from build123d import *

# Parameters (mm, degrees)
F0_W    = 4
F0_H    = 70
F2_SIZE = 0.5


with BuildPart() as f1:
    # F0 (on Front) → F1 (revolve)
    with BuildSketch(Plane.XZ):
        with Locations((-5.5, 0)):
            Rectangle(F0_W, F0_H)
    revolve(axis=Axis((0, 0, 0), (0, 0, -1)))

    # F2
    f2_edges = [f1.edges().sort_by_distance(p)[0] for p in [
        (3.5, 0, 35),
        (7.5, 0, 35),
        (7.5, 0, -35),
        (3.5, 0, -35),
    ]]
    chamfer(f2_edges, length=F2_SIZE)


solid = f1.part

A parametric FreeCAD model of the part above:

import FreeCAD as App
import Part
import Sketcher

V = App.Vector
Q = App.Units.Quantity


def edges_at(feature, points):
    """Names of the edges that pass closest to the given points."""
    edges = feature.Shape.Edges
    near = lambda p: min(range(len(edges)), key=lambda i: edges[i].distToShape(Part.Vertex(*p))[0])
    return sorted({f"Edge{near(p) + 1}" for p in points})


def add_polygon(sketch, points):
    """Adds a closed chain of lines whose ends are joined by coincident constraints."""
    first, n = sketch.GeometryCount, len(points)
    for a, b in zip(points, points[1:] + points[:1]):
        sketch.addGeometry(Part.LineSegment(App.Vector(*a, 0), App.Vector(*b, 0)), False)
    for i in range(n):
        sketch.addConstraint(Sketcher.Constraint("Coincident", first + i, 2, first + (i + 1) % n, 1))

doc = App.newDocument("Part")
body = doc.addObject("PartDesign::Body", "Body")

# Sketch on XZ plane
sketch1 = doc.addObject("Sketcher::SketchObject", "Sketch")
body.addObject(sketch1)
sketch1.AttachmentSupport = (doc.XZ_Plane, [""])
sketch1.MapMode = "FlatFace"
add_polygon(sketch1, [(-7.5, 35), (-7.5, -35), (-3.5, -35), (-3.5, 35)])  # lines 0-3
sketch1.addConstraint([
    Sketcher.Constraint("Vertical", 0),
    Sketcher.Constraint("Horizontal", 1),
    Sketcher.Constraint("Vertical", 2),
    Sketcher.Constraint("Horizontal", 3),
    Sketcher.Constraint("DistanceX", 1, 1, 1, 2, Q("4 mm")),
    Sketcher.Constraint("DistanceY", 0, 2, 0, 1, Q("70 mm")),
    Sketcher.Constraint("DistanceY", 0, 2, -1, 1, Q("35 mm")),
    Sketcher.Constraint("DistanceX", 0, 2, -1, 1, Q("7.5 mm")),
])
revolution = doc.addObject("PartDesign::Revolution", "Revolution")
body.addObject(revolution)
revolution.Profile = sketch1
revolution.ReferenceAxis = (sketch1, ["V_Axis"])
revolution.Angle = 360
doc.recompute()

chamfer = doc.addObject("PartDesign::Chamfer", "Chamfer")
body.addObject(chamfer)
chamfer.Base = (revolution, edges_at(revolution, [
    (3.5, 0, 35),
    (7.5, 0, 35),
    (7.5, 0, -35),
    (3.5, 0, -35),
]))
chamfer.Size = 0.5

doc.recompute()
